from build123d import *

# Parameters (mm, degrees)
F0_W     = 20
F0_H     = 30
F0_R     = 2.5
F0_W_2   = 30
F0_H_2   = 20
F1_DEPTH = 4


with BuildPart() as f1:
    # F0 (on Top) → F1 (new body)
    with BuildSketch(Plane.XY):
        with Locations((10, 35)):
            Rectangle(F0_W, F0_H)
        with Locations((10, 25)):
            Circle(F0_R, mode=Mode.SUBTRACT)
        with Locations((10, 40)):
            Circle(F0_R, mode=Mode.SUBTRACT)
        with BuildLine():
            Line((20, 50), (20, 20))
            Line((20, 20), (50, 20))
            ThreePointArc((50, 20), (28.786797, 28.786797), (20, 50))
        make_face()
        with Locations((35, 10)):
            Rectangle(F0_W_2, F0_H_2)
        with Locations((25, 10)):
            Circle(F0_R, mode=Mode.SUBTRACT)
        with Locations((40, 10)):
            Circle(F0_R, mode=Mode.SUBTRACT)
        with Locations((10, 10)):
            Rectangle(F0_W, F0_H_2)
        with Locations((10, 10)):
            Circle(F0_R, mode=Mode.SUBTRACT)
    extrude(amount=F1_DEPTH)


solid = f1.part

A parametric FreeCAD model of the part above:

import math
import FreeCAD as App
import Part
import Sketcher
Q = App.Units.Quantity

doc = App.newDocument("Part")
body = doc.addObject("PartDesign::Body", "Body")

sketch1 = body.newObject("Sketcher::SketchObject", "Sketch")
sketch1.AttachmentSupport = (doc.getObject("XY_Plane"), [""])
sketch1.MapMode = "FlatFace"
sketch1.addGeometry(Part.LineSegment(App.Vector(0, 50, 0), App.Vector(0, 0, 0)), False)
sketch1.addGeometry(Part.LineSegment(App.Vector(0, 0, 0), App.Vector(50, 0, 0)), False)
sketch1.addGeometry(Part.LineSegment(App.Vector(50, 0, 0), App.Vector(50, 20, 0)), False)
sketch1.addGeometry(Part.ArcOfCircle(Part.Circle(App.Vector(50, 50, 0), App.Vector(0, 0, 1), 30), math.radians(-180), math.radians(-90)), False)
sketch1.addGeometry(Part.LineSegment(App.Vector(20, 50, 0), App.Vector(0, 50, 0)), False)
sketch1.addGeometry(Part.Circle(App.Vector(10, 10, 0), App.Vector(0, 0, 1), 2.5), False)
sketch1.addGeometry(Part.Circle(App.Vector(25, 10, 0), App.Vector(0, 0, 1), 2.5), False)
sketch1.addGeometry(Part.Circle(App.Vector(40, 10, 0), App.Vector(0, 0, 1), 2.5), False)
sketch1.addGeometry(Part.Circle(App.Vector(10, 25, 0), App.Vector(0, 0, 1), 2.5), False)
sketch1.addGeometry(Part.Circle(App.Vector(10, 40, 0), App.Vector(0, 0, 1), 2.5), False)
sketch1.addConstraint(Sketcher.Constraint("Coincident", 0, 2, 1, 1))
sketch1.addConstraint(Sketcher.Constraint("Coincident", 1, 2, 2, 1))
sketch1.addConstraint(Sketcher.Constraint("Coincident", 2, 2, 3, 2))
sketch1.addConstraint(Sketcher.Constraint("Coincident", 3, 1, 4, 1))
sketch1.addConstraint(Sketcher.Constraint("Coincident", 4, 2, 0, 1))
sketch1.addConstraint(Sketcher.Constraint("Vertical", 0))
sketch1.addConstraint(Sketcher.Constraint("Horizontal", 1))
sketch1.addConstraint(Sketcher.Constraint("Vertical", 2))
sketch1.addConstraint(Sketcher.Constraint("Horizontal", 4))
sketch1.addConstraint(Sketcher.Constraint("Coincident", 0, 2, -1, 1))
sketch1.addConstraint(Sketcher.Constraint("Equal", 5, 6))
sketch1.addConstraint(Sketcher.Constraint("Equal", 6, 7))
sketch1.addConstraint(Sketcher.Constraint("Equal", 7, 8))
sketch1.addConstraint(Sketcher.Constraint("Equal", 8, 9))
sketch1.addConstraint(Sketcher.Constraint("Horizontal", 5, 3, 6, 3))
sketch1.addConstraint(Sketcher.Constraint("Horizontal", 6, 3, 7, 3))
sketch1.addConstraint(Sketcher.Constraint("Vertical", 5, 3, 8, 3))
sketch1.addConstraint(Sketcher.Constraint("Vertical", 8, 3, 9, 3))
sketch1.addConstraint(Sketcher.Constraint("Vertical", 3, 3, 1, 2))
sketch1.addConstraint(Sketcher.Constraint("Equal", 1, 0))
sketch1.addConstraint(Sketcher.Constraint("Equal", 4, 2))
sketch1.addConstraint(Sketcher.Constraint("Diameter", 5, Q("5 mm")))
sketch1.addConstraint(Sketcher.Constraint("Radius", 3, Q("30.000001 mm")))
sketch1.addConstraint(Sketcher.Constraint("DistanceX", 1, 1, 1, 2, Q("50 mm")))
sketch1.addConstraint(Sketcher.Constraint("DistanceX", -1, 1, 5, 3, Q("10 mm")))
sketch1.addConstraint(Sketcher.Constraint("DistanceY", -1, 1, 5, 3, Q("10 mm")))
sketch1.addConstraint(Sketcher.Constraint("DistanceX", -1, 1, 6, 3, Q("25 mm")))
sketch1.addConstraint(Sketcher.Constraint("DistanceX", -1, 1, 7, 3, Q("40 mm")))
sketch1.addConstraint(Sketcher.Constraint("DistanceY", -1, 1, 8, 3, Q("25 mm")))
sketch1.addConstraint(Sketcher.Constraint("DistanceY", -1, 1, 9, 3, Q("40 mm")))
pad1 = body.newObject("PartDesign::Pad", "Pad")
pad1.Profile = sketch1
pad1.Length = 4

doc.recompute()
